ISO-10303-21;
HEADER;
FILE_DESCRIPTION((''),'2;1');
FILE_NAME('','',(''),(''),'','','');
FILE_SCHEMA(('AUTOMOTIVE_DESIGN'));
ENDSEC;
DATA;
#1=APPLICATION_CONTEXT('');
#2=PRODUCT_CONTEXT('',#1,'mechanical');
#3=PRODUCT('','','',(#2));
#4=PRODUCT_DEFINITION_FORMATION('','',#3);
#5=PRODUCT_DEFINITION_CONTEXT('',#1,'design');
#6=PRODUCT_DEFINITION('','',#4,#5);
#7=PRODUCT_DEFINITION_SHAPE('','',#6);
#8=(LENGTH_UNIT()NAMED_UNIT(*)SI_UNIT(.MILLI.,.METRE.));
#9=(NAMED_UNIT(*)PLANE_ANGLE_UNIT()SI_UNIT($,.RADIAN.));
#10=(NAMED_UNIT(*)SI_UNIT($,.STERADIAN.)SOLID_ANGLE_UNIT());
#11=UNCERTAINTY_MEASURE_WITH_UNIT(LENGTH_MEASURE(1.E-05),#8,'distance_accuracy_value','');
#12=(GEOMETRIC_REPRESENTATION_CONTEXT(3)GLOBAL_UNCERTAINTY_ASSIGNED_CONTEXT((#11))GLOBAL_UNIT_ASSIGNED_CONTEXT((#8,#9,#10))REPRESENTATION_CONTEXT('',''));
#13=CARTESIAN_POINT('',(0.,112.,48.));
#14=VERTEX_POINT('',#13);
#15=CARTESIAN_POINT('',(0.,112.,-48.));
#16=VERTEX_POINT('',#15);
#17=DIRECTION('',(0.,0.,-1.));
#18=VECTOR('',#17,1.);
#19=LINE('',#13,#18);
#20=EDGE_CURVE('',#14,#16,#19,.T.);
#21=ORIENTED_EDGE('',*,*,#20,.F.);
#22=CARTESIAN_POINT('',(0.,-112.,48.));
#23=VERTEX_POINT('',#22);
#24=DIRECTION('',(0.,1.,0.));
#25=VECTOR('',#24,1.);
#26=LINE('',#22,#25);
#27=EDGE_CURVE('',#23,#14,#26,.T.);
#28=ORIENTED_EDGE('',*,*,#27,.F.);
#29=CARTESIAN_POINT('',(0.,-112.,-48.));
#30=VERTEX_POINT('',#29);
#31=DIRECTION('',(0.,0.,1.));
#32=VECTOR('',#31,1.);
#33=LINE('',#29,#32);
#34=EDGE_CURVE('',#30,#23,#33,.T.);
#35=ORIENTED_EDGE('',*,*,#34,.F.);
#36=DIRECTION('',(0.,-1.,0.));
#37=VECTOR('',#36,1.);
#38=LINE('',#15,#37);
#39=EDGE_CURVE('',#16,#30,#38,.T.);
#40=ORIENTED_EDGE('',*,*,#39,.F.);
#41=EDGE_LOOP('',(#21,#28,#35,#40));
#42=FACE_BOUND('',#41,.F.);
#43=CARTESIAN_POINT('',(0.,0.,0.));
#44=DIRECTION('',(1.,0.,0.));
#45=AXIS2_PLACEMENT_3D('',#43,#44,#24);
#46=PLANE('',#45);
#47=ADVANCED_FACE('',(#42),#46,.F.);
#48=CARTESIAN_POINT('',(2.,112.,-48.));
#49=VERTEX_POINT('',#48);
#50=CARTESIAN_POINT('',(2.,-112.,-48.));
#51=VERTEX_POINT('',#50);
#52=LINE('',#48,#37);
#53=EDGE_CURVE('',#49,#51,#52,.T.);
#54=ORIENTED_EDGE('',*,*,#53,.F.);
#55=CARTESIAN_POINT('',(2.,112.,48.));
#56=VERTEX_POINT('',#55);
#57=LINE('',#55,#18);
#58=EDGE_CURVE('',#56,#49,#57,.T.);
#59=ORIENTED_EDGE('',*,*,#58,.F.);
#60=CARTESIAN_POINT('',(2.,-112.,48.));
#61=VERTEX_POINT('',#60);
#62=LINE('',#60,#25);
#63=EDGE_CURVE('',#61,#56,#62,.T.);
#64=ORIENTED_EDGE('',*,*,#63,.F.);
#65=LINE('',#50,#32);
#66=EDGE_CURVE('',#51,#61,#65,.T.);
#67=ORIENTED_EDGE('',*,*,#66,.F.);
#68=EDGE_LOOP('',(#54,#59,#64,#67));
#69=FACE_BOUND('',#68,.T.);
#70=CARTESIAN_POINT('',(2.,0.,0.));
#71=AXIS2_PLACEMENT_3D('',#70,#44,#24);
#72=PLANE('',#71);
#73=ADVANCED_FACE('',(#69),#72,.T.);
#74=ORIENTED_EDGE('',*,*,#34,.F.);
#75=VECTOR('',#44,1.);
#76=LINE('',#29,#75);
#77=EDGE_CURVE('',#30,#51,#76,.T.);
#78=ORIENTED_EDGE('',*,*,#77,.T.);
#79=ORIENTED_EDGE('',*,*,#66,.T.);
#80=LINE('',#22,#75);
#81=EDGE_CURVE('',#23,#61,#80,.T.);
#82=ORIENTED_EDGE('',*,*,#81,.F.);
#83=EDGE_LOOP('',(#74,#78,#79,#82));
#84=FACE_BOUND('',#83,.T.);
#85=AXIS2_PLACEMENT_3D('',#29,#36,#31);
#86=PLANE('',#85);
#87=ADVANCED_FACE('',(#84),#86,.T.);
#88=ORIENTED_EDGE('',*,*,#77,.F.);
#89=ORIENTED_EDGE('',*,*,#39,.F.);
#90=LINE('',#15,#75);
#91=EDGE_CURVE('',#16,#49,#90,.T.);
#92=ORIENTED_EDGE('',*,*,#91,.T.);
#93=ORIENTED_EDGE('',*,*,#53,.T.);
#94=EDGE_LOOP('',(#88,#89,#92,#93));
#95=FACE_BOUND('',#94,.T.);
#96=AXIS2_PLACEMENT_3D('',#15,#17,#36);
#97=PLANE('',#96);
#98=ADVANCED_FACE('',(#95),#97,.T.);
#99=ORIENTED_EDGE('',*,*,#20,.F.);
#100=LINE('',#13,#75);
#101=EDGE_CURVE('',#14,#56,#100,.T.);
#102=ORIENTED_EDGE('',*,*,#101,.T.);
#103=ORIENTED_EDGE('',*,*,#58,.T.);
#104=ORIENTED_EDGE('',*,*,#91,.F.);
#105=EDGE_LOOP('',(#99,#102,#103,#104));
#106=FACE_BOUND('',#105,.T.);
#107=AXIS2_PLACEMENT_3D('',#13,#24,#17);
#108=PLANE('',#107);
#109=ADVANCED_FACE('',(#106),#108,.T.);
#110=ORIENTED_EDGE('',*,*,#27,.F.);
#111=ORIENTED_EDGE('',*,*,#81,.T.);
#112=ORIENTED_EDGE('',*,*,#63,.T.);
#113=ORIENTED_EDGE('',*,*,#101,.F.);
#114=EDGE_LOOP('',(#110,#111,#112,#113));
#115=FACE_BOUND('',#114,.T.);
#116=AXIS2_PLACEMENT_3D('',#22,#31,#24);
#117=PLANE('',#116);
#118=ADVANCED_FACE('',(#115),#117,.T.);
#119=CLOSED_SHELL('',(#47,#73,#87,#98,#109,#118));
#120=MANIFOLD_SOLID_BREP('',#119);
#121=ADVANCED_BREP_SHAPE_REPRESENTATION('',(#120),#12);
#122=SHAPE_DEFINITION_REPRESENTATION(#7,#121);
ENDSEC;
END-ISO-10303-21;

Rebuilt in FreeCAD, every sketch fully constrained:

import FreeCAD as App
import Part
import Sketcher
from FreeCAD import Vector

doc = App.newDocument("Part")
body = doc.addObject("PartDesign::Body", "Body")

sketch1 = doc.addObject("Sketcher::SketchObject", "Sketch")
body.addObject(sketch1)
sketch1.AttachmentSupport = (doc.YZ_Plane, [""])
sketch1.MapMode = "FlatFace"
sketch1.addGeometry([
    Part.LineSegment(Vector(-112, -48, 0), Vector(112, -48, 0)),
    Part.LineSegment(Vector(112, -48, 0), Vector(112, 48, 0)),
    Part.LineSegment(Vector(112, 48, 0), Vector(-112, 48, 0)),
    Part.LineSegment(Vector(-112, 48, 0), Vector(-112, -48, 0)),
], False)
sketch1.addConstraint([
    Sketcher.Constraint("Coincident", 0, 2, 1, 1),
    Sketcher.Constraint("Coincident", 1, 2, 2, 1),
    Sketcher.Constraint("Coincident", 2, 2, 3, 1),
    Sketcher.Constraint("Coincident", 3, 2, 0, 1),
    Sketcher.Constraint("Horizontal", 0),
    Sketcher.Constraint("Vertical", 1),
    Sketcher.Constraint("Horizontal", 2),
    Sketcher.Constraint("Vertical", 3),
    Sketcher.Constraint("Symmetric", 0, 2, 2, 2, -1, 1),
    Sketcher.Constraint("DistanceX", 0, 1, 0, 2, 224.0),
    Sketcher.Constraint("DistanceY", 1, 1, 1, 2, 96.0),
])
pad1 = doc.addObject("PartDesign::Pad", "Pad")
body.addObject(pad1)
pad1.Profile = sketch1
pad1.Length = 2

doc.recompute()
